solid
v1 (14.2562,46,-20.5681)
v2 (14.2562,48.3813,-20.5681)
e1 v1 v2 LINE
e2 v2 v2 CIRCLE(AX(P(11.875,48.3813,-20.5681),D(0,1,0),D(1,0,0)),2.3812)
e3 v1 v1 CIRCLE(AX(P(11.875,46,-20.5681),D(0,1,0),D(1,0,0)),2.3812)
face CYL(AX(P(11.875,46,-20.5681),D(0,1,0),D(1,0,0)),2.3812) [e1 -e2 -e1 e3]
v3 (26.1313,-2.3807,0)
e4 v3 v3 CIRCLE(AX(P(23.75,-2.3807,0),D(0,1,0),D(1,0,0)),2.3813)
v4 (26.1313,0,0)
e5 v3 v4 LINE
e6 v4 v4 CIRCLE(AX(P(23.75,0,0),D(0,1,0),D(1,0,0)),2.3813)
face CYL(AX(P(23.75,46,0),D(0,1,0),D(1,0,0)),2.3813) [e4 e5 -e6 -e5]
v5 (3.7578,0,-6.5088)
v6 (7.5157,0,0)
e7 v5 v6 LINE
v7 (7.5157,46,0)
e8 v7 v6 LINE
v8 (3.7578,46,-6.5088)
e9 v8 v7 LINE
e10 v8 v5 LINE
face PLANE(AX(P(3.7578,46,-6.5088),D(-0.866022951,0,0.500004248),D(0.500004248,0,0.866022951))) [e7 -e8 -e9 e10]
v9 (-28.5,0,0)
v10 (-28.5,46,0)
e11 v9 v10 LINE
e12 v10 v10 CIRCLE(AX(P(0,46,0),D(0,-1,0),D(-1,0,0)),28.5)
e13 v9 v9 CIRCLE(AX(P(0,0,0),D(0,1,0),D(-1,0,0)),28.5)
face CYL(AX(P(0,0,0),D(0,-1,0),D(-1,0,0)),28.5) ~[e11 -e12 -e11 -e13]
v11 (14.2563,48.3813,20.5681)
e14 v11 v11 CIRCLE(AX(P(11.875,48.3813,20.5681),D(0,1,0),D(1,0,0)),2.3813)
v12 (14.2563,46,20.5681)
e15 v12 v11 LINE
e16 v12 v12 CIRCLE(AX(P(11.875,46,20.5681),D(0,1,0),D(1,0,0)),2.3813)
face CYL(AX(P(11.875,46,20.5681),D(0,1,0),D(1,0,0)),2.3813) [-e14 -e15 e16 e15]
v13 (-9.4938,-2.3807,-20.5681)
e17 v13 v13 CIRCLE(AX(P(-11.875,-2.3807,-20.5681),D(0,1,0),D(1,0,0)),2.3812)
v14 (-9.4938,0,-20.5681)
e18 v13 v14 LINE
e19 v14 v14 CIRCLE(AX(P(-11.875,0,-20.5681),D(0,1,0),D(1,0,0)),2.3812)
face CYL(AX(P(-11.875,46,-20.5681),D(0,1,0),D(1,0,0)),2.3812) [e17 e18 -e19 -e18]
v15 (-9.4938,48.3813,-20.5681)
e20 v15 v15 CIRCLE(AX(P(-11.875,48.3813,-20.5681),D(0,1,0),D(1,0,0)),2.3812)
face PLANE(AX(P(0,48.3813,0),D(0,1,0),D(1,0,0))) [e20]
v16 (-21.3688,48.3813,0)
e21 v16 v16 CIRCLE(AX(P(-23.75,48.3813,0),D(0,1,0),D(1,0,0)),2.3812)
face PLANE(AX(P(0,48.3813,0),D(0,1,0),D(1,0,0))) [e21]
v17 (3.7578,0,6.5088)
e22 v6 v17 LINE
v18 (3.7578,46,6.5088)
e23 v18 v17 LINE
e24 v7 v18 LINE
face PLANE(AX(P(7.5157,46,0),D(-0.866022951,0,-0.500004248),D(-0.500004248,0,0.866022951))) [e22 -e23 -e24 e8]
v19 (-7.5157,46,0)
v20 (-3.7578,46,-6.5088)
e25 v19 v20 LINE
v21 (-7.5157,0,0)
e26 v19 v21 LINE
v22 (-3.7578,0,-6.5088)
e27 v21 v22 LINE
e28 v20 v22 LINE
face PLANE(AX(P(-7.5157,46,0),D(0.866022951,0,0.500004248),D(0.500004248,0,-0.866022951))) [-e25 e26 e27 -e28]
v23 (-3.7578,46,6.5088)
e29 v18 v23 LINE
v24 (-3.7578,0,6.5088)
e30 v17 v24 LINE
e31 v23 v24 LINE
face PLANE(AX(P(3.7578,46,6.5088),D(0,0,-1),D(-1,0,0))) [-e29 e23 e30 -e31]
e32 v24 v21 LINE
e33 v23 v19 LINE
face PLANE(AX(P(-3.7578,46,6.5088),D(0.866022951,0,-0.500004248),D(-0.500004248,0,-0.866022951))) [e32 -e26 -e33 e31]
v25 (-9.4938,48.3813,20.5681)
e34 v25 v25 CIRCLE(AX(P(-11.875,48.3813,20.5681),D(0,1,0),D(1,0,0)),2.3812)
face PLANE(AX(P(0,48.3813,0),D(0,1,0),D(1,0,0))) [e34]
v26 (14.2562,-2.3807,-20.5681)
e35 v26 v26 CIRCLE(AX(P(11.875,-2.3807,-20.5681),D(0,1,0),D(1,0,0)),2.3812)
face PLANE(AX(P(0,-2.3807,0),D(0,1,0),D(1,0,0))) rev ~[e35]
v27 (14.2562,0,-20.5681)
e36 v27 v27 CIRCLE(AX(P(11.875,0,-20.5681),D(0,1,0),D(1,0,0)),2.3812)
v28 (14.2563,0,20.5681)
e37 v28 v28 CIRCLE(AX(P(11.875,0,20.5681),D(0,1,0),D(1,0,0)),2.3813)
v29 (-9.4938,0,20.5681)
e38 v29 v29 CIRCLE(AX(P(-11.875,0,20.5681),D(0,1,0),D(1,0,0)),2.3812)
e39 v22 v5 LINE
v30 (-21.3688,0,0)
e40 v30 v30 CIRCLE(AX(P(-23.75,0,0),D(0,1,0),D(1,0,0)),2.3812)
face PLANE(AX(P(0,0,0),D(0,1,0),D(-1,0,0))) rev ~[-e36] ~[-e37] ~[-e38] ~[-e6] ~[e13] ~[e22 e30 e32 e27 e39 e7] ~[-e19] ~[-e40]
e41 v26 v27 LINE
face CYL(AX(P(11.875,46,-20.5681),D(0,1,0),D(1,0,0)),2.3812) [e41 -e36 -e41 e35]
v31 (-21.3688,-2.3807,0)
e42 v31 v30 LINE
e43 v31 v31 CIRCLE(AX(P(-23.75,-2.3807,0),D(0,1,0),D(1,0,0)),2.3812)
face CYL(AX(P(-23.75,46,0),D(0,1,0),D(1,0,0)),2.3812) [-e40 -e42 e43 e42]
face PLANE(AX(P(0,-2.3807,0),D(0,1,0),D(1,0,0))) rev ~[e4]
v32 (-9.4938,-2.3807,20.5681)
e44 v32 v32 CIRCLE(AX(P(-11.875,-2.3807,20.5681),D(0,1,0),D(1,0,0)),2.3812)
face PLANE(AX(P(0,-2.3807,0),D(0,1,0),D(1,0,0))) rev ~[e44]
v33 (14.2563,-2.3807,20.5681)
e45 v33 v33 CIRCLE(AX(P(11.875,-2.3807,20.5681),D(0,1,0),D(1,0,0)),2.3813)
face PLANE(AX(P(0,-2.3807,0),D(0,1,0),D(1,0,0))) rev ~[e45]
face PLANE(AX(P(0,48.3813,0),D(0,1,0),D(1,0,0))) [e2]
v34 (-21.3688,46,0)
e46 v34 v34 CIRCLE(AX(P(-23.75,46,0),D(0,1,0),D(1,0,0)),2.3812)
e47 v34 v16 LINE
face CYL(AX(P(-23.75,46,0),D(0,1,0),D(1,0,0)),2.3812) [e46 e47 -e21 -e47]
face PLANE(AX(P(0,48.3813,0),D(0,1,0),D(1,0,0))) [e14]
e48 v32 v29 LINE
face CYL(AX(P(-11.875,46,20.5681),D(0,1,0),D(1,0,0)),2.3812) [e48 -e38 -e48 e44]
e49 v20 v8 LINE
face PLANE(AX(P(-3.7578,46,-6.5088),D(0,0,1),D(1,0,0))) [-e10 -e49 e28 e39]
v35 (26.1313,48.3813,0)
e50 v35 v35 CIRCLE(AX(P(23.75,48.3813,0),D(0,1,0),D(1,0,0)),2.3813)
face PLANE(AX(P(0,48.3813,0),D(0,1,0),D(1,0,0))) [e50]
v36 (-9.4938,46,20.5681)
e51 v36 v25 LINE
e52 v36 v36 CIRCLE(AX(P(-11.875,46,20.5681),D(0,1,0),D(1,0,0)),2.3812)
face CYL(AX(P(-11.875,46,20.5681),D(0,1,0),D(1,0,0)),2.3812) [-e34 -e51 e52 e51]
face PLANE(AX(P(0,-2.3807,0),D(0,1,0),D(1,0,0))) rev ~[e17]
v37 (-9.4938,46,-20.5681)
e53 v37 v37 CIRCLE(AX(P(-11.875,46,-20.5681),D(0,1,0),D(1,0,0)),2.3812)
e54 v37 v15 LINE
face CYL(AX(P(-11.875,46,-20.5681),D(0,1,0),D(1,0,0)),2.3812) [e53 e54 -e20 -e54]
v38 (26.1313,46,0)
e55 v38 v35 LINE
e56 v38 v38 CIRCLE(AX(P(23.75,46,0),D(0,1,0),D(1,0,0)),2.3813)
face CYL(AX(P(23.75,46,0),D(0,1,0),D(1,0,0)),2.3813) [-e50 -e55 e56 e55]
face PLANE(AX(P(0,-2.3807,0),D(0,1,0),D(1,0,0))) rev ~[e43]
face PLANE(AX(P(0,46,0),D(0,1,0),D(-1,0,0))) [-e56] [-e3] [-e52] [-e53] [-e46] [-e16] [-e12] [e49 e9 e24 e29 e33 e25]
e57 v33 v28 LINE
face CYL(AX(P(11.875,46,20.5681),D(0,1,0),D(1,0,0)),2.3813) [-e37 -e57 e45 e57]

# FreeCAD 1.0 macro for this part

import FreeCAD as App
import Part
import Sketcher
Q = App.Units.Quantity


def add_polygon(sketch, points):
    """Adds a closed chain of lines whose ends are joined by coincident constraints."""
    first, n = sketch.GeometryCount, len(points)
    for a, b in zip(points, points[1:] + points[:1]):
        sketch.addGeometry(Part.LineSegment(App.Vector(*a, 0), App.Vector(*b, 0)), False)
    for i in range(n):
        sketch.addConstraint(Sketcher.Constraint("Coincident", first + i, 2, first + (i + 1) % n, 1))

doc = App.newDocument("Part")
body = doc.addObject("PartDesign::Body", "Body")

sketch1 = body.newObject("Sketcher::SketchObject", "Sketch")
sketch1.AttachmentSupport = (doc.getObject("XZ_Plane"), [""])
sketch1.MapMode = "FlatFace"
sketch1.addGeometry(Part.Circle(App.Vector(0, 0, 0), App.Vector(0, 0, 1), 28.5), False)
sketch1.addGeometry(Part.Circle(App.Vector(11.9, -20.6, 0), App.Vector(0, 0, 1), 1.6), False)
sketch1.addGeometry(Part.Circle(App.Vector(-11.9, -20.6, 0), App.Vector(0, 0, 1), 1.6), False)
sketch1.addGeometry(Part.Circle(App.Vector(23.8, 0, 0), App.Vector(0, 0, 1), 1.6), False)
sketch1.addGeometry(Part.Circle(App.Vector(11.9, 20.6, 0), App.Vector(0, 0, 1), 1.6), False)
sketch1.addGeometry(Part.Circle(App.Vector(0, 0, 0), App.Vector(0, 0, 1), 9), False)
sketch1.addGeometry(Part.Circle(App.Vector(-23.8, 0, 0), App.Vector(0, 0, 1), 1.6), False)
sketch1.addGeometry(Part.Circle(App.Vector(-11.9, 20.6, 0), App.Vector(0, 0, 1), 1.6), False)
sketch1.addConstraint(Sketcher.Constraint("Coincident", 0, 3, -1, 1))
sketch1.addConstraint(Sketcher.Constraint("Coincident", 5, 3, -1, 1))
sketch1.addConstraint(Sketcher.Constraint("Equal", 1, 2))
sketch1.addConstraint(Sketcher.Constraint("Equal", 2, 3))
sketch1.addConstraint(Sketcher.Constraint("Equal", 3, 4))
sketch1.addConstraint(Sketcher.Constraint("Equal", 4, 6))
sketch1.addConstraint(Sketcher.Constraint("Equal", 6, 7))
sketch1.addConstraint(Sketcher.Constraint("Symmetric", 2, 3, 4, 3, -1, 1))
sketch1.addConstraint(Sketcher.Constraint("Symmetric", 3, 3, 6, 3, -1, 1))
sketch1.addConstraint(Sketcher.Constraint("Symmetric", 1, 3, 7, 3, -1, 1))
sketch1.addConstraint(Sketcher.Constraint("Symmetric", 1, 3, 2, 3, -2))
sketch1.addConstraint(Sketcher.Constraint("PointOnObject", 3, 3, -1))
sketch1.addConstraint(Sketcher.Constraint("Diameter", 1, Q("0.125 in")))
sketch1.addConstraint(Sketcher.Constraint("Diameter", 0, Q("2.2441 in")))
sketch1.addConstraint(Sketcher.Constraint("Diameter", 5, Q("18 mm")))
sketch1.addConstraint(Sketcher.Constraint("DistanceY", 1, 3, -1, 1, Q("20.568 mm")))
sketch1.addConstraint(Sketcher.Constraint("DistanceX", -1, 1, 1, 3, Q("11.875 mm")))
sketch1.addConstraint(Sketcher.Constraint("DistanceX", -1, 1, 3, 3, Q("23.75 mm")))
pad1 = body.newObject("PartDesign::Pad", "Pad")
pad1.Profile = sketch1
pad1.Length = 46
pad1.Reversed = True

sketch2 = body.newObject("Sketcher::SketchObject", "Sketch001")
sketch2.AttachmentSupport = (doc.getObject("XZ_Plane"), [""])
sketch2.MapMode = "FlatFace"
sketch2.AttachmentOffset = App.Placement(App.Vector(0, 0, -46), App.Rotation())
sketch2.addGeometry(Part.Circle(App.Vector(0, 0, 0), App.Vector(0, 0, 1), 28.5), False)
sketch2.addGeometry(Part.Circle(App.Vector(-11.9, 20.6, 0), App.Vector(0, 0, 1), 1.6), False)
sketch2.addGeometry(Part.Circle(App.Vector(11.9, 20.6, 0), App.Vector(0, 0, 1), 1.6), False)
sketch2.addGeometry(Part.Circle(App.Vector(-23.8, 0, 0), App.Vector(0, 0, 1), 1.6), False)
sketch2.addGeometry(Part.Circle(App.Vector(-11.9, -20.6, 0), App.Vector(0, 0, 1), 1.6), False)
add_polygon(sketch2, [(3.8, -6.5), (7.5, 0), (3.8, 6.5), (-3.8, 6.5), (-7.5, 0), (-3.8, -6.5)])
sketch2.addGeometry(Part.Circle(App.Vector(23.8, 0, 0), App.Vector(0, 0, 1), 1.6), False)
sketch2.addGeometry(Part.Circle(App.Vector(11.9, -20.6, 0), App.Vector(0, 0, 1), 1.6), False)
sketch2.addConstraint(Sketcher.Constraint("Horizontal", 7))
sketch2.addConstraint(Sketcher.Constraint("Horizontal", 10))
sketch2.addConstraint(Sketcher.Constraint("Coincident", 0, 3, -1, 1))
sketch2.addConstraint(Sketcher.Constraint("Equal", 1, 2))
sketch2.addConstraint(Sketcher.Constraint("Equal", 2, 3))
sketch2.addConstraint(Sketcher.Constraint("Equal", 3, 4))
sketch2.addConstraint(Sketcher.Constraint("Equal", 4, 11))
sketch2.addConstraint(Sketcher.Constraint("Equal", 11, 12))
sketch2.addConstraint(Sketcher.Constraint("Symmetric", 2, 3, 4, 3, -1, 1))
sketch2.addConstraint(Sketcher.Constraint("Symmetric", 3, 3, 11, 3, -1, 1))
sketch2.addConstraint(Sketcher.Constraint("Symmetric", 1, 3, 12, 3, -1, 1))
sketch2.addConstraint(Sketcher.Constraint("Symmetric", 5, 2, 8, 2, -1, 1))
sketch2.addConstraint(Sketcher.Constraint("Symmetric", 6, 2, 9, 2, -1, 1))
sketch2.addConstraint(Sketcher.Constraint("Symmetric", 1, 3, 2, 3, -2))
sketch2.addConstraint(Sketcher.Constraint("PointOnObject", 3, 3, -1))
sketch2.addConstraint(Sketcher.Constraint("PointOnObject", 5, 2, -1))
sketch2.addConstraint(Sketcher.Constraint("Parallel", 5, 8))
sketch2.addConstraint(Sketcher.Constraint("Vertical", 7, 2, 9, 2))
sketch2.addConstraint(Sketcher.Constraint("Diameter", 1, Q("0.125 in")))
sketch2.addConstraint(Sketcher.Constraint("Angle", 5, Q("59.9997 deg")))
sketch2.addConstraint(Sketcher.Constraint("Diameter", 0, Q("2.2441 in")))
sketch2.addConstraint(Sketcher.Constraint("DistanceY", 9, 2, 7, 2, Q("0.5125 in")))
sketch2.addConstraint(Sketcher.Constraint("DistanceX", 7, 2, 7, 1, Q("0.2959 in")))
sketch2.addConstraint(Sketcher.Constraint("DistanceX", 6, 2, 11, 3, Q("0.7871 in")))
sketch2.addConstraint(Sketcher.Constraint("DistanceX", 1, 3, -1, 1, Q("11.875 mm")))
sketch2.addConstraint(Sketcher.Constraint("DistanceY", -1, 1, 1, 3, Q("20.568 mm")))
pad2 = body.newObject("PartDesign::Pad", "Pad001")
pad2.Profile = sketch2
pad2.Length = 46

sketch3 = body.newObject("Sketcher::SketchObject", "Sketch002")
sketch3.AttachmentSupport = (doc.getObject("XZ_Plane"), [""])
sketch3.MapMode = "FlatFace"
sketch3.AttachmentOffset = App.Placement(App.Vector(0, 0, -46), App.Rotation())
sketch3.addGeometry(Part.Circle(App.Vector(-11.9, -20.6, 0), App.Vector(0, 0, 1), 2.4), False)
sketch3.addGeometry(Part.Circle(App.Vector(11.9, -20.6, 0), App.Vector(0, 0, 1), 2.4), False)
sketch3.addGeometry(Part.Circle(App.Vector(23.8, 0, 0), App.Vector(0, 0, 1), 2.4), False)
sketch3.addGeometry(Part.Circle(App.Vector(11.9, 20.6, 0), App.Vector(0, 0, 1), 2.4), False)
sketch3.addGeometry(Part.Circle(App.Vector(-11.9, 20.6, 0), App.Vector(0, 0, 1), 2.4), False)
sketch3.addGeometry(Part.Circle(App.Vector(-23.8, 0, 0), App.Vector(0, 0, 1), 2.4), False)
sketch3.addConstraint(Sketcher.Constraint("Equal", 0, 1))
sketch3.addConstraint(Sketcher.Constraint("Equal", 1, 2))
sketch3.addConstraint(Sketcher.Constraint("Equal", 2, 3))
sketch3.addConstraint(Sketcher.Constraint("Equal", 3, 4))
sketch3.addConstraint(Sketcher.Constraint("Equal", 4, 5))
sketch3.addConstraint(Sketcher.Constraint("Symmetric", 0, 3, 3, 3, -1, 1))
sketch3.addConstraint(Sketcher.Constraint("Symmetric", 1, 3, 4, 3, -1, 1))
sketch3.addConstraint(Sketcher.Constraint("Symmetric", 2, 3, 5, 3, -1, 1))
sketch3.addConstraint(Sketcher.Constraint("Symmetric", 0, 3, 1, 3, -2))
sketch3.addConstraint(Sketcher.Constraint("PointOnObject", 2, 3, -1))
sketch3.addConstraint(Sketcher.Constraint("Diameter", 0, Q("0.1875 in")))
sketch3.addConstraint(Sketcher.Constraint("DistanceX", 0, 3, -1, 1, Q("11.875 mm")))
sketch3.addConstraint(Sketcher.Constraint("DistanceY", 0, 3, -1, 1, Q("20.568 mm")))
sketch3.addConstraint(Sketcher.Constraint("DistanceX", -1, 1, 2, 3, Q("23.75 mm")))
pad3 = body.newObject("PartDesign::Pad", "Pad002")
pad3.Profile = sketch3
pad3.Type = "TwoLengths"
pad3.Length = Q("0.093752 in")
pad3.Length2 = 48.3807
pad3.Reversed = True

doc.recompute()
